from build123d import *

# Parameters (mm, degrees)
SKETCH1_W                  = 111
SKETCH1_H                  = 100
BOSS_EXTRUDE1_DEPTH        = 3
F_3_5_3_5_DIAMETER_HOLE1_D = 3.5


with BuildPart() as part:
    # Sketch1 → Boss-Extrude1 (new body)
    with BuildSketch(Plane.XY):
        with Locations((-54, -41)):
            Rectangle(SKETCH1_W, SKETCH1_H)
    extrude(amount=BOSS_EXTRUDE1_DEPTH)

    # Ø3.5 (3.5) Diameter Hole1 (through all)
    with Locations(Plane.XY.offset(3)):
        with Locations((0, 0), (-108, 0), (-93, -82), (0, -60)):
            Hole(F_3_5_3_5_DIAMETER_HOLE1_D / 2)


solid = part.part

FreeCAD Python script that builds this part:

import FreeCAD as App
import Part
import Sketcher
from FreeCAD import Vector

doc = App.newDocument("Part")
body = doc.addObject("PartDesign::Body", "Body")

sketch1 = doc.addObject("Sketcher::SketchObject", "Sketch")
body.addObject(sketch1)
sketch1.AttachmentSupport = (doc.XY_Plane, [""])
sketch1.MapMode = "FlatFace"
sketch1.addGeometry([
    Part.LineSegment(Vector(-110, 9, 0), Vector(-110, -91, 0)),
    Part.LineSegment(Vector(-110, -91, 0), Vector(2, -91, 0)),
    Part.LineSegment(Vector(2, -91, 0), Vector(2, 9, 0)),
    Part.LineSegment(Vector(2, 9, 0), Vector(-110, 9, 0)),
], False)
sketch1.addConstraint([
    Sketcher.Constraint("Coincident", 0, 2, 1, 1),
    Sketcher.Constraint("Coincident", 1, 2, 2, 1),
    Sketcher.Constraint("Coincident", 2, 2, 3, 1),
    Sketcher.Constraint("Coincident", 3, 2, 0, 1),
    Sketcher.Constraint("Vertical", 0),
    Sketcher.Constraint("Horizontal", 1),
    Sketcher.Constraint("Vertical", 2),
    Sketcher.Constraint("Horizontal", 3),
    Sketcher.Constraint("DistanceX", 1, 1, 1, 2, 111.0),
    Sketcher.Constraint("DistanceY", 0, 2, 0, 1, 100.0),
    Sketcher.Constraint("DistanceY", 0, 2, -1, 1, 91.0),
    Sketcher.Constraint("DistanceX", 0, 2, -1, 1, 109.5),
])
pad1 = doc.addObject("PartDesign::Pad", "Pad")
body.addObject(pad1)
pad1.Profile = sketch1
pad1.Length = 3

sketch2 = doc.addObject("Sketcher::SketchObject", "Sketch001")
body.addObject(sketch2)
sketch2.AttachmentSupport = (doc.XY_Plane, [""])
sketch2.MapMode = "FlatFace"
sketch2.AttachmentOffset = App.Placement(Vector(0, 0, 3), App.Rotation())
sketch2.addGeometry([
    Part.Circle(Vector(0, 0, 0), Vector(0, 0, 1), 1.8),
    Part.Circle(Vector(-108, 0, 0), Vector(0, 0, 1), 1.8),
    Part.Circle(Vector(-93, -82, 0), Vector(0, 0, 1), 1.8),
    Part.Circle(Vector(0, -60, 0), Vector(0, 0, 1), 1.8),
], False)
sketch2.addConstraint([
    Sketcher.Constraint("Coincident", 0, 3, -1, 1),
    Sketcher.Constraint("Equal", 0, 1),
    Sketcher.Constraint("Equal", 1, 2),
    Sketcher.Constraint("Equal", 2, 3),
    Sketcher.Constraint("PointOnObject", 1, 3, -1),
    Sketcher.Constraint("PointOnObject", 3, 3, -2),
    Sketcher.Constraint("Diameter", 0, 3.5),
    Sketcher.Constraint("DistanceX", 1, 3, -1, 1, 108.0),
    Sketcher.Constraint("DistanceX", 2, 3, -1, 1, 93.0),
    Sketcher.Constraint("DistanceY", 2, 3, -1, 1, 82.0),
    Sketcher.Constraint("DistanceY", 3, 3, -1, 1, 60.0),
])
doc.recompute()
hole = doc.addObject("PartDesign::Hole", "Hole")
body.addObject(hole)
hole.Profile = sketch2
hole.ThreadType = "None"
hole.Diameter = 3.5
hole.DepthType = "ThroughAll"

doc.recompute()
